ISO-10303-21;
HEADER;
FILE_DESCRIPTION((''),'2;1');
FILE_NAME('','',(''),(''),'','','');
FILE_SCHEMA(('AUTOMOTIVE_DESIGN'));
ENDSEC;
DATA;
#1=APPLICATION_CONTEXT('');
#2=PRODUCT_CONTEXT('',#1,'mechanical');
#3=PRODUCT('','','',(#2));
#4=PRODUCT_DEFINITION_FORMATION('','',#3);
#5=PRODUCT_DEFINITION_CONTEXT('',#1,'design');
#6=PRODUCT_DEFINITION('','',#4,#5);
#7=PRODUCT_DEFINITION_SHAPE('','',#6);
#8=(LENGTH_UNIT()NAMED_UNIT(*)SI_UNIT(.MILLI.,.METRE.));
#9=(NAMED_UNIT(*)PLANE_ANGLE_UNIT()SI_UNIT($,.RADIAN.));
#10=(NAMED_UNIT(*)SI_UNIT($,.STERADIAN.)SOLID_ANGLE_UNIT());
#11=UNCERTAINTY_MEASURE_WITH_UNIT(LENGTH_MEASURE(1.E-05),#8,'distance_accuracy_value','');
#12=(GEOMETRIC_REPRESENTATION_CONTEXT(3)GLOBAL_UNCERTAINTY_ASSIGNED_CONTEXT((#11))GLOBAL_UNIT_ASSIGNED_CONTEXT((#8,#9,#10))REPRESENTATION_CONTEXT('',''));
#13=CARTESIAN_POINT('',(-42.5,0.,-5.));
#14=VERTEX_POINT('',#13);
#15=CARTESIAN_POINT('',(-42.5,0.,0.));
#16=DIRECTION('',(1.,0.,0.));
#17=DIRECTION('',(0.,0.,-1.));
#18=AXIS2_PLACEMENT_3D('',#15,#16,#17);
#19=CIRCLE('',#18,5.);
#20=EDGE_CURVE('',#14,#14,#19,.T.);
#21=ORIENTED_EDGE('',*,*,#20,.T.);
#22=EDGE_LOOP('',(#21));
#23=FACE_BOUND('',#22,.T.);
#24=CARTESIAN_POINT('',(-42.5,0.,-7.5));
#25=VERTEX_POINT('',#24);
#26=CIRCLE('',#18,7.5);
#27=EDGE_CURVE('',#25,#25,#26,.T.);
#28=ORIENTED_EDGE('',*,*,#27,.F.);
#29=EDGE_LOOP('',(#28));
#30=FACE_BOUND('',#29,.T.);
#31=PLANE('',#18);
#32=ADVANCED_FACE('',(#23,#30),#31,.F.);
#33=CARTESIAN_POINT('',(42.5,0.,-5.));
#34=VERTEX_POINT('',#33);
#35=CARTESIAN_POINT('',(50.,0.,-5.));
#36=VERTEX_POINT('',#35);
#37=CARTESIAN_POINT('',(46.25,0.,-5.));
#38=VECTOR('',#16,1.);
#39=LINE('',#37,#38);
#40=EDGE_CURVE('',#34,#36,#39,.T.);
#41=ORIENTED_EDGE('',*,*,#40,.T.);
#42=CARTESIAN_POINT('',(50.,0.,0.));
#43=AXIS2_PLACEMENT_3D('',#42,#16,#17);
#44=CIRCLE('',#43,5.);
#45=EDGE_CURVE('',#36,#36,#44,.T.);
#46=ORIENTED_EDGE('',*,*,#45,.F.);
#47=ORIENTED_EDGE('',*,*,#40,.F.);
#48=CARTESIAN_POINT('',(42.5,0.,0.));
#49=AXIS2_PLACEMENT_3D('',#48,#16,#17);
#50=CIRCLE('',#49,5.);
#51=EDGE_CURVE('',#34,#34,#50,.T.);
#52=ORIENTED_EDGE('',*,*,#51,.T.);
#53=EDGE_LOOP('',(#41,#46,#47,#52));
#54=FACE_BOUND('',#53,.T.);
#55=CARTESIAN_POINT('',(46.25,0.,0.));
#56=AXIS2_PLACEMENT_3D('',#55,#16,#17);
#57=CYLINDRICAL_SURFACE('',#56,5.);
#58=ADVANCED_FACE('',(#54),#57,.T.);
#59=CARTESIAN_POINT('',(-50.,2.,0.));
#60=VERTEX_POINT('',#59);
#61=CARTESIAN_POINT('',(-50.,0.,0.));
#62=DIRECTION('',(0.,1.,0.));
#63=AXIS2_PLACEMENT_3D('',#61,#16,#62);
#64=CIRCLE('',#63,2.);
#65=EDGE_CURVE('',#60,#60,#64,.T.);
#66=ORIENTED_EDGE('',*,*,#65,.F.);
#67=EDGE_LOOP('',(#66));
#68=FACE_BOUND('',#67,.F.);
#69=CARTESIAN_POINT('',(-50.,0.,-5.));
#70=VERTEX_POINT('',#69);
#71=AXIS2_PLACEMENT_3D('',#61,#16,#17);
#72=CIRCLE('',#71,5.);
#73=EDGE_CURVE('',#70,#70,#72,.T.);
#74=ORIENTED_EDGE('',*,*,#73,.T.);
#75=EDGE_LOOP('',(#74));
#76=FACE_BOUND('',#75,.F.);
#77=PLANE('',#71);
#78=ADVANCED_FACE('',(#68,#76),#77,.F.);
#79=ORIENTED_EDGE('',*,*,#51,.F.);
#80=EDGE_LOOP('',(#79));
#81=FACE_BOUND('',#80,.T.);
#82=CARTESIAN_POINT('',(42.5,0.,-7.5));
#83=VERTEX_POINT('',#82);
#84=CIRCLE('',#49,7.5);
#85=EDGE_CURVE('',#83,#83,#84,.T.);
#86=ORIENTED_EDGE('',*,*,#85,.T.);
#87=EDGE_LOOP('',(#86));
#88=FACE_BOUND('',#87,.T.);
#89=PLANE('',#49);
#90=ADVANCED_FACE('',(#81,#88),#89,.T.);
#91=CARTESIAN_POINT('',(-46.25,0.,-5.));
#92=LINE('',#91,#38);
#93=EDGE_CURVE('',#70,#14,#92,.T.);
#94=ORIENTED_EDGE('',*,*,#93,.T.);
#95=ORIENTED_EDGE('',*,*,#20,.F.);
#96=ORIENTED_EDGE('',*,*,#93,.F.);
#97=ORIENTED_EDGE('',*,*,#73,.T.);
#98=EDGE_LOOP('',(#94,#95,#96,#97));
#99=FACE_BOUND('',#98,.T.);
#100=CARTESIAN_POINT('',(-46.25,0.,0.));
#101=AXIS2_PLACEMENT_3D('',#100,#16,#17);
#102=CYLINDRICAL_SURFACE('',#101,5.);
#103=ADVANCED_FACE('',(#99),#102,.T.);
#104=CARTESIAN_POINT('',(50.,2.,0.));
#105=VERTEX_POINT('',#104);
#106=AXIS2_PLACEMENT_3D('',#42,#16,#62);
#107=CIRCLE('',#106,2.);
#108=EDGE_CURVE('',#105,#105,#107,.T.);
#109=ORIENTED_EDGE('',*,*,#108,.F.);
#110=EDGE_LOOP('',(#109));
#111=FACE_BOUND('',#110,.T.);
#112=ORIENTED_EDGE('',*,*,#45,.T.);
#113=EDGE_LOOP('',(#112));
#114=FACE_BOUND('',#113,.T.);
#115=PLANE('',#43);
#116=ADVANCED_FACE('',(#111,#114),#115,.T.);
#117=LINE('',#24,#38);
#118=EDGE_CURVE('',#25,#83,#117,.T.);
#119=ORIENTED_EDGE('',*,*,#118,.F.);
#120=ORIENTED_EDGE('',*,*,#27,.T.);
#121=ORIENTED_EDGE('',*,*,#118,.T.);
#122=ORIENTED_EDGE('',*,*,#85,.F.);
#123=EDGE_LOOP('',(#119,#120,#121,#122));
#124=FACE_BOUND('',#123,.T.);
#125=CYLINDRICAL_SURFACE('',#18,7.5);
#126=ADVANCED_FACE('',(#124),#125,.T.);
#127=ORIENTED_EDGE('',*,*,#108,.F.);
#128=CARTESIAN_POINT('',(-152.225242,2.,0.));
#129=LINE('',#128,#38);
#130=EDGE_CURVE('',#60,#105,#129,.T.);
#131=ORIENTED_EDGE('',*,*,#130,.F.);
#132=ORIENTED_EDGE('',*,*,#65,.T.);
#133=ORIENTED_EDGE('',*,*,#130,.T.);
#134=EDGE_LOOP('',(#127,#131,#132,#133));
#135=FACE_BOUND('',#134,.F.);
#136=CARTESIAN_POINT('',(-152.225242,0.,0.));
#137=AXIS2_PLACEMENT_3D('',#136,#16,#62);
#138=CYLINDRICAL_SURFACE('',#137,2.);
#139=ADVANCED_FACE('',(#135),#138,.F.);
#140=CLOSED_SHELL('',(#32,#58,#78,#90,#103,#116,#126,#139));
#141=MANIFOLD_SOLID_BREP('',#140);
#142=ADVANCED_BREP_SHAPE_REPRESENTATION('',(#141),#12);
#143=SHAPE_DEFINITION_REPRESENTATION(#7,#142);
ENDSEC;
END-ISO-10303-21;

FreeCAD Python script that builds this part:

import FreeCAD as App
import Part
import Sketcher
Q = App.Units.Quantity


def add_polygon(sketch, points):
    """Adds a closed chain of lines whose ends are joined by coincident constraints."""
    first, n = sketch.GeometryCount, len(points)
    for a, b in zip(points, points[1:] + points[:1]):
        sketch.addGeometry(Part.LineSegment(App.Vector(*a, 0), App.Vector(*b, 0)), False)
    for i in range(n):
        sketch.addConstraint(Sketcher.Constraint("Coincident", first + i, 2, first + (i + 1) % n, 1))

doc = App.newDocument("Part")
body = doc.addObject("PartDesign::Body", "Body")

# Sketch on XZ plane
sketch1 = body.newObject("Sketcher::SketchObject", "Sketch")
sketch1.AttachmentSupport = (doc.getObject("XZ_Plane"), [""])
sketch1.MapMode = "FlatFace"
add_polygon(sketch1, [(-50, 0), (-50, -5), (-42.5, -5), (-42.5, -7.5), (42.5, -7.5), (42.5, -5), (50, -5), (50, 0)])  # lines 0-7
sketch1.addConstraint([
    Sketcher.Constraint("Vertical", 0),
    Sketcher.Constraint("Horizontal", 1),
    Sketcher.Constraint("Vertical", 2),
    Sketcher.Constraint("Horizontal", 3),
    Sketcher.Constraint("Vertical", 4),
    Sketcher.Constraint("Horizontal", 5),
    Sketcher.Constraint("Vertical", 6),
    Sketcher.Constraint("Horizontal", 7),
    Sketcher.Constraint("Symmetric", 6, 2, 7, 2, -1, 1),
    Sketcher.Constraint("Symmetric", 1, 2, 4, 2, -2),
    Sketcher.Constraint("DistanceX", 3, 1, 3, 2, Q("85 mm")),
    Sketcher.Constraint("DistanceX", 7, 2, 7, 1, Q("100 mm")),
    Sketcher.Constraint("DistanceY", 0, 2, 0, 1, Q("5 mm")),
    Sketcher.Constraint("DistanceY", 2, 2, 2, 1, Q("2.5 mm")),
])
revolution = body.newObject("PartDesign::Revolution", "Revolution")
revolution.Profile = sketch1
revolution.ReferenceAxis = (sketch1, ["H_Axis"])
revolution.Angle = 360

# Sketch on YZ plane
sketch2 = body.newObject("Sketcher::SketchObject", "Sketch001")
sketch2.AttachmentSupport = (doc.getObject("YZ_Plane"), [""])
sketch2.MapMode = "FlatFace"
sketch2.AttachmentOffset = App.Placement(App.Vector(0, 0, -50), App.Rotation())
sketch2.addGeometry(Part.Circle(App.Vector(0, 0, 0), App.Vector(0, 0, 1), 2), False)
sketch2.addConstraint([
    Sketcher.Constraint("Coincident", 0, 3, -1, 1),
    Sketcher.Constraint("Diameter", 0, Q("4 mm")),
])
doc.recompute()
hole = body.newObject("PartDesign::Hole", "Hole")
hole.Profile = sketch2
hole.ThreadType = "None"
hole.Diameter = 4
hole.DepthType = "ThroughAll"
hole.Reversed = True

doc.recompute()
